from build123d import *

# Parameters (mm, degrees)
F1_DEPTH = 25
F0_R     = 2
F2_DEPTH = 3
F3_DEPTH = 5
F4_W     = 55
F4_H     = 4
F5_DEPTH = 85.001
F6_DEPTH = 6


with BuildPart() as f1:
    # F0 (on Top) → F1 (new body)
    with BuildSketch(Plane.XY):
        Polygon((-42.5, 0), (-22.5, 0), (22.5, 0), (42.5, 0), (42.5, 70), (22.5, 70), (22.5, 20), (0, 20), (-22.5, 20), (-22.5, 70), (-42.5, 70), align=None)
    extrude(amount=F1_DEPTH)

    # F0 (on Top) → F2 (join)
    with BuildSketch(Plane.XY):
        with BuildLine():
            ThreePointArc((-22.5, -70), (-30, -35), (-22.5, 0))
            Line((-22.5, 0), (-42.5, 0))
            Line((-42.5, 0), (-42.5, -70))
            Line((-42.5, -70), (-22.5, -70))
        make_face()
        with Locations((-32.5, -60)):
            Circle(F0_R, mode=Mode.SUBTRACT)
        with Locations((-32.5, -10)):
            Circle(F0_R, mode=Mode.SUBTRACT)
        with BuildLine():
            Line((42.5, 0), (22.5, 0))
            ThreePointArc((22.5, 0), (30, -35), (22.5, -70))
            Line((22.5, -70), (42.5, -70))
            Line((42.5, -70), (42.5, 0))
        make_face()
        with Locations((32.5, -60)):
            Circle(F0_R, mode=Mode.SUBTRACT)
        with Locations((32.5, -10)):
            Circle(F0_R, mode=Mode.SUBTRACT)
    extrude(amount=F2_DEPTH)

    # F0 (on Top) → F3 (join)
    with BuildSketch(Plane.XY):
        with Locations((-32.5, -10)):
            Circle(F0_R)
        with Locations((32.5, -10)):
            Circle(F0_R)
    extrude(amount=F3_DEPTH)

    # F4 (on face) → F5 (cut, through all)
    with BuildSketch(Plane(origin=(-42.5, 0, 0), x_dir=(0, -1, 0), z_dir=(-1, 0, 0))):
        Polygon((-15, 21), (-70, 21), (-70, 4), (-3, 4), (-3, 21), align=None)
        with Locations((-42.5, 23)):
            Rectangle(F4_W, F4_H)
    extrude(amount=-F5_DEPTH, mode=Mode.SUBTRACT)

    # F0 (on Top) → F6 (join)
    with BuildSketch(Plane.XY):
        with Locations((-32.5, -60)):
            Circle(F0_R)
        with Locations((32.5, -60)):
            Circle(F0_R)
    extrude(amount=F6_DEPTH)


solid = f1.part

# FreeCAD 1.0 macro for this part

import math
import FreeCAD as App
import Part
import Sketcher
from FreeCAD import Vector


def add_polygon(sketch, points):
    """Adds a closed chain of lines whose ends are joined by coincident constraints."""
    first, n = sketch.GeometryCount, len(points)
    for a, b in zip(points, points[1:] + points[:1]):
        sketch.addGeometry(Part.LineSegment(App.Vector(*a, 0), App.Vector(*b, 0)), False)
    for i in range(n):
        sketch.addConstraint(Sketcher.Constraint("Coincident", first + i, 2, first + (i + 1) % n, 1))

doc = App.newDocument("Part")
body = doc.addObject("PartDesign::Body", "Body")

sketch1 = doc.addObject("Sketcher::SketchObject", "Sketch")
body.addObject(sketch1)
sketch1.AttachmentSupport = (doc.XY_Plane, [""])
sketch1.MapMode = "FlatFace"
add_polygon(sketch1, [(-42.5, 0), (42.5, 0), (42.5, 70), (22.5, 70), (22.5, 20), (-22.5, 20), (-22.5, 70), (-42.5, 70)])
sketch1.addConstraint([
    Sketcher.Constraint("Horizontal", 0),
    Sketcher.Constraint("Vertical", 1),
    Sketcher.Constraint("Horizontal", 2),
    Sketcher.Constraint("Vertical", 3),
    Sketcher.Constraint("Horizontal", 4),
    Sketcher.Constraint("Vertical", 5),
    Sketcher.Constraint("Horizontal", 6),
    Sketcher.Constraint("Vertical", 7),
    Sketcher.Constraint("Symmetric", 0, 2, 7, 2, -1, 1),
    Sketcher.Constraint("Symmetric", 2, 2, 5, 2, -2),
    Sketcher.Constraint("DistanceX", 0, 1, 0, 2, 85.0),
    Sketcher.Constraint("DistanceX", 2, 2, 2, 1, 20.0),
    Sketcher.Constraint("DistanceY", 1, 1, 1, 2, 70.0),
    Sketcher.Constraint("DistanceY", 3, 2, 3, 1, 50.0),
])
pad1 = doc.addObject("PartDesign::Pad", "Pad")
body.addObject(pad1)
pad1.Profile = sketch1
pad1.Length = 25

sketch2 = doc.addObject("Sketcher::SketchObject", "Sketch001")
body.addObject(sketch2)
sketch2.AttachmentSupport = (doc.XY_Plane, [""])
sketch2.MapMode = "FlatFace"
sketch2.addGeometry([
    Part.ArcOfCircle(Part.Circle(Vector(55.416667, -35, 0), Vector(0, 0, 1), 85.416667), math.radians(155.810486), math.radians(204.189514)),
    Part.LineSegment(Vector(-22.5, 0, 0), Vector(-42.5, 0, 0)),
    Part.LineSegment(Vector(-42.5, 0, 0), Vector(-42.5, -70, 0)),
    Part.LineSegment(Vector(-42.5, -70, 0), Vector(-22.5, -70, 0)),
    Part.Circle(Vector(-32.5, -60, 0), Vector(0, 0, 1), 2),
    Part.Circle(Vector(-32.5, -10, 0), Vector(0, 0, 1), 2),
    Part.LineSegment(Vector(42.5, 0, 0), Vector(22.5, 0, 0)),
    Part.ArcOfCircle(Part.Circle(Vector(-55.416667, -35, 0), Vector(0, 0, 1), 85.416667), math.radians(-24.189514), math.radians(24.189514)),
    Part.LineSegment(Vector(22.5, -70, 0), Vector(42.5, -70, 0)),
    Part.LineSegment(Vector(42.5, -70, 0), Vector(42.5, 0, 0)),
    Part.Circle(Vector(32.5, -60, 0), Vector(0, 0, 1), 2),
    Part.Circle(Vector(32.5, -10, 0), Vector(0, 0, 1), 2),
], False)
sketch2.addConstraint([
    Sketcher.Constraint("Coincident", 0, 1, 1, 1),
    Sketcher.Constraint("Coincident", 1, 2, 2, 1),
    Sketcher.Constraint("Coincident", 2, 2, 3, 1),
    Sketcher.Constraint("Coincident", 3, 2, 0, 2),
    Sketcher.Constraint("Coincident", 6, 2, 7, 2),
    Sketcher.Constraint("Coincident", 7, 1, 8, 1),
    Sketcher.Constraint("Coincident", 8, 2, 9, 1),
    Sketcher.Constraint("Coincident", 9, 2, 6, 1),
    Sketcher.Constraint("Horizontal", 1),
    Sketcher.Constraint("Vertical", 2),
    Sketcher.Constraint("Horizontal", 3),
    Sketcher.Constraint("Horizontal", 6),
    Sketcher.Constraint("Horizontal", 8),
    Sketcher.Constraint("Vertical", 9),
    Sketcher.Constraint("Equal", 4, 5),
    Sketcher.Constraint("Equal", 0, 7),
    Sketcher.Constraint("Equal", 5, 10),
    Sketcher.Constraint("Equal", 10, 11),
    Sketcher.Constraint("Symmetric", 0, 1, 6, 2, -1, 1),
    Sketcher.Constraint("Symmetric", 0, 3, 7, 3, -2),
    Sketcher.Constraint("Symmetric", 4, 3, 10, 3, -2),
    Sketcher.Constraint("Symmetric", 5, 3, 11, 3, -2),
    Sketcher.Constraint("Symmetric", 2, 2, 8, 2, -2),
    Sketcher.Constraint("Vertical", 4, 3, 5, 3),
    Sketcher.Constraint("Vertical", 0, 1, 3, 2),
    Sketcher.Constraint("Diameter", 4, 4.0),
    Sketcher.Constraint("DistanceX", 1, 2, 1, 1, 20.0),
    Sketcher.Constraint("DistanceY", 2, 2, 2, 1, 70.0),
    Sketcher.Constraint("DistanceY", 4, 3, -1, 1, 60.0),
    Sketcher.Constraint("DistanceY", 5, 3, -1, 1, 10.0),
    Sketcher.Constraint("DistanceX", 4, 3, 10, 3, 65.0),
    Sketcher.Constraint("DistanceX", 5, 3, 0, 1, 10.0),
    Sketcher.Constraint("Radius", 0, 85.416667),
])
pad2 = doc.addObject("PartDesign::Pad", "Pad001")
body.addObject(pad2)
pad2.Profile = sketch2
pad2.Length = 3

sketch3 = doc.addObject("Sketcher::SketchObject", "Sketch002")
body.addObject(sketch3)
sketch3.AttachmentSupport = (doc.XY_Plane, [""])
sketch3.MapMode = "FlatFace"
sketch3.addGeometry([
    Part.Circle(Vector(-32.5, -10, 0), Vector(0, 0, 1), 2),
    Part.Circle(Vector(32.5, -10, 0), Vector(0, 0, 1), 2),
], False)
sketch3.addConstraint([
    Sketcher.Constraint("Equal", 0, 1),
    Sketcher.Constraint("Symmetric", 0, 3, 1, 3, -2),
    Sketcher.Constraint("Diameter", 0, 4.0),
    Sketcher.Constraint("DistanceY", 0, 3, -1, 1, 10.0),
    Sketcher.Constraint("DistanceX", 0, 3, 1, 3, 65.0),
])
pad3 = doc.addObject("PartDesign::Pad", "Pad002")
body.addObject(pad3)
pad3.Profile = sketch3
pad3.Length = 5

sketch4 = doc.addObject("Sketcher::SketchObject", "Sketch003")
body.addObject(sketch4)
sketch4.AttachmentSupport = (doc.YZ_Plane, [""])
sketch4.MapMode = "FlatFace"
sketch4.AttachmentOffset = App.Placement(Vector(0, 0, -42.5), App.Rotation())
add_polygon(sketch4, [(70, 4), (3, 4), (3, 21), (15, 21), (15, 25), (70, 25)])
sketch4.addConstraint([
    Sketcher.Constraint("Horizontal", 0),
    Sketcher.Constraint("Vertical", 1),
    Sketcher.Constraint("Horizontal", 2),
    Sketcher.Constraint("Vertical", 3),
    Sketcher.Constraint("Horizontal", 4),
    Sketcher.Constraint("Vertical", 5),
    Sketcher.Constraint("DistanceX", 0, 2, 0, 1, 67.0),
    Sketcher.Constraint("DistanceX", 2, 1, 2, 2, 12.0),
    Sketcher.Constraint("DistanceY", 1, 1, 1, 2, 17.0),
    Sketcher.Constraint("DistanceY", 3, 1, 3, 2, 4.0),
    Sketcher.Constraint("DistanceX", -1, 1, 0, 2, 3.0),
    Sketcher.Constraint("DistanceY", -1, 1, 0, 2, 4.0),
])
pocket1 = doc.addObject("PartDesign::Pocket", "Pocket")
body.addObject(pocket1)
pocket1.Profile = sketch4
pocket1.Type = "ThroughAll"
pocket1.Reversed = True

sketch5 = doc.addObject("Sketcher::SketchObject", "Sketch004")
body.addObject(sketch5)
sketch5.AttachmentSupport = (doc.XY_Plane, [""])
sketch5.MapMode = "FlatFace"
sketch5.addGeometry([
    Part.Circle(Vector(-32.5, -60, 0), Vector(0, 0, 1), 2),
    Part.Circle(Vector(32.5, -60, 0), Vector(0, 0, 1), 2),
], False)
sketch5.addConstraint([
    Sketcher.Constraint("Equal", 0, 1),
    Sketcher.Constraint("Symmetric", 0, 3, 1, 3, -2),
    Sketcher.Constraint("Diameter", 0, 4.0),
    Sketcher.Constraint("DistanceY", 0, 3, -1, 1, 60.0),
    Sketcher.Constraint("DistanceX", 0, 3, 1, 3, 65.0),
])
pad4 = doc.addObject("PartDesign::Pad", "Pad003")
body.addObject(pad4)
pad4.Profile = sketch5
pad4.Length = 6

doc.recompute()
